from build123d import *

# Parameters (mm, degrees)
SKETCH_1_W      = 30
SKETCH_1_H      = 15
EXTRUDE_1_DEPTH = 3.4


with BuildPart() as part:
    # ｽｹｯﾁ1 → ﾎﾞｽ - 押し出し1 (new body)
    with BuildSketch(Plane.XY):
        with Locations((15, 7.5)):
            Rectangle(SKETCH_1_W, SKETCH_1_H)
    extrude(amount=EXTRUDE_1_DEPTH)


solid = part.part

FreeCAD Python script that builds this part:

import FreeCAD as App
import Part
import Sketcher

V = App.Vector
Q = App.Units.Quantity

doc = App.newDocument("Part")
body = doc.addObject("PartDesign::Body", "Body")

sketch1 = doc.addObject("Sketcher::SketchObject", "Sketch")
body.addObject(sketch1)
sketch1.AttachmentSupport = (doc.XY_Plane, [""])
sketch1.MapMode = "FlatFace"
sketch1.addGeometry(Part.LineSegment(V(0, 15, 0), V(0, 0, 0)), False)
sketch1.addGeometry(Part.LineSegment(V(0, 0, 0), V(30, 0, 0)), False)
sketch1.addGeometry(Part.LineSegment(V(30, 0, 0), V(30, 15, 0)), False)
sketch1.addGeometry(Part.LineSegment(V(30, 15, 0), V(0, 15, 0)), False)
sketch1.addConstraint(Sketcher.Constraint("Coincident", 0, 2, 1, 1))
sketch1.addConstraint(Sketcher.Constraint("Coincident", 1, 2, 2, 1))
sketch1.addConstraint(Sketcher.Constraint("Coincident", 2, 2, 3, 1))
sketch1.addConstraint(Sketcher.Constraint("Coincident", 3, 2, 0, 1))
sketch1.addConstraint(Sketcher.Constraint("Vertical", 0))
sketch1.addConstraint(Sketcher.Constraint("Horizontal", 1))
sketch1.addConstraint(Sketcher.Constraint("Vertical", 2))
sketch1.addConstraint(Sketcher.Constraint("Horizontal", 3))
sketch1.addConstraint(Sketcher.Constraint("Coincident", 0, 2, -1, 1))
sketch1.addConstraint(Sketcher.Constraint("DistanceX", 1, 1, 1, 2, Q("30 mm")))
sketch1.addConstraint(Sketcher.Constraint("DistanceY", 0, 2, 0, 1, Q("15 mm")))
pad1 = doc.addObject("PartDesign::Pad", "Pad")
body.addObject(pad1)
pad1.Profile = sketch1
pad1.Length = 3.4

doc.recompute()
